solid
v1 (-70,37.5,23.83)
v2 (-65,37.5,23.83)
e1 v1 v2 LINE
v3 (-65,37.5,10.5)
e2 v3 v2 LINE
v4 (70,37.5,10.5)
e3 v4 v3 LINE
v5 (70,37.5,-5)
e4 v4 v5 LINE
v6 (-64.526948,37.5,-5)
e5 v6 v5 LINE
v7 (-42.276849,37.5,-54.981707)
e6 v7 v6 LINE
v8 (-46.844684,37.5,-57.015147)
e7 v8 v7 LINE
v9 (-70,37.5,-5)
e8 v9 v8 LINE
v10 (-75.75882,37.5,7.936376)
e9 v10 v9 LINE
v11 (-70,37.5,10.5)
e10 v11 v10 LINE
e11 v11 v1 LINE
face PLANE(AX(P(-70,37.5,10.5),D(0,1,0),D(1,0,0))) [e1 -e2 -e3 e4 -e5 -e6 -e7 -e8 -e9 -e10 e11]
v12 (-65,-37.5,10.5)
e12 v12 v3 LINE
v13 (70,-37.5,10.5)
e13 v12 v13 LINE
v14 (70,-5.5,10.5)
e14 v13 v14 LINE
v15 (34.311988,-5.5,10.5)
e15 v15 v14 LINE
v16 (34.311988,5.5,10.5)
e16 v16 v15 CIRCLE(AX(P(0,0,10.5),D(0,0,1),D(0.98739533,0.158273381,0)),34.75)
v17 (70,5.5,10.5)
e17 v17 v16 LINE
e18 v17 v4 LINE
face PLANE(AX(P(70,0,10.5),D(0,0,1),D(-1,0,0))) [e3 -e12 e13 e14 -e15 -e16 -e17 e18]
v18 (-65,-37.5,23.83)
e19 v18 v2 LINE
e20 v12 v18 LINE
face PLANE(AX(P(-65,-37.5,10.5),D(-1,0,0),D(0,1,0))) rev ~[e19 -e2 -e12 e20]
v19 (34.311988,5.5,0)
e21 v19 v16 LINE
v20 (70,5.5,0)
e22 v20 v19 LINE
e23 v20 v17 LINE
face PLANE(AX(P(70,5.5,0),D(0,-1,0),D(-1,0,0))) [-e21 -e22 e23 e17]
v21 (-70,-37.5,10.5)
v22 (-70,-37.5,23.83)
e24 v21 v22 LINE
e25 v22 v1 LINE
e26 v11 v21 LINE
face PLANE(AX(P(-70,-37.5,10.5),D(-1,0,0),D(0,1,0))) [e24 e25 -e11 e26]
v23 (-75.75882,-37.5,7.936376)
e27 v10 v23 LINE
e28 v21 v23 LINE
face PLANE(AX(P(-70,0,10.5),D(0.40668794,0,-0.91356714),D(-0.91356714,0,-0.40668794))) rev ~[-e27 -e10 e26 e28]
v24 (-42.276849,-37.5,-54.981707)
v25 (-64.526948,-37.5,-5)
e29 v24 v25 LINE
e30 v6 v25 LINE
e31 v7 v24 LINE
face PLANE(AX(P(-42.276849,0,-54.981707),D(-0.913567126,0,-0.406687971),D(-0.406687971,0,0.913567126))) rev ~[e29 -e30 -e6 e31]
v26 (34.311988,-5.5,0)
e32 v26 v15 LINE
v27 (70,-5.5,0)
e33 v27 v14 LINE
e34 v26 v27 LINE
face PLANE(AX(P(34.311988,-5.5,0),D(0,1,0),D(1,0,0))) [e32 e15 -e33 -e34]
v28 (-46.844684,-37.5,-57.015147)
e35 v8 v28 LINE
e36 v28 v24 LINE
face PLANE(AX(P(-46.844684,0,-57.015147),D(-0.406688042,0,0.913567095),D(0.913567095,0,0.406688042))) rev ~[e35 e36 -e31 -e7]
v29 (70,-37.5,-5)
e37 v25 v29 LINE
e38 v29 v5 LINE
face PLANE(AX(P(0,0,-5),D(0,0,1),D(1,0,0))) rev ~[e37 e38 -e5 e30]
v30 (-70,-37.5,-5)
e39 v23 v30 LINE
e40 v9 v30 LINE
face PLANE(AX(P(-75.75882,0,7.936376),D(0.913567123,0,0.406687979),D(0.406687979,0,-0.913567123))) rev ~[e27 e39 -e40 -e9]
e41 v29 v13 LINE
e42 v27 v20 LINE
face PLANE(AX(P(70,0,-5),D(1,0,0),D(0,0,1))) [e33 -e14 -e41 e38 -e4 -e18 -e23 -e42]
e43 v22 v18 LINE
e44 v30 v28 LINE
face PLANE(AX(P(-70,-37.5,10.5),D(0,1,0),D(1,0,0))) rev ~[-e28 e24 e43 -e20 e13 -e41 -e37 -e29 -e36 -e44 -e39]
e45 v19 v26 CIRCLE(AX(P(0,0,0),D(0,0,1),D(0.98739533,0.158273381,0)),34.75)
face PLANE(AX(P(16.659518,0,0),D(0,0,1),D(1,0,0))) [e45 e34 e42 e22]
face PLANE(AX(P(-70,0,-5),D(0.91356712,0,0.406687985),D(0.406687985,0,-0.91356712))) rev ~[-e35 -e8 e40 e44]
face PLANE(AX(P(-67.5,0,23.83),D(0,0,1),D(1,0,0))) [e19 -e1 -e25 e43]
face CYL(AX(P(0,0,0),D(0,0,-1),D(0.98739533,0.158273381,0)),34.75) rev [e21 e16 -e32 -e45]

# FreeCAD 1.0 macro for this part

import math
import FreeCAD as App
import Part
import Sketcher
from FreeCAD import Vector
Q = App.Units.Quantity


def add_polygon(sketch, points):
    """Adds a closed chain of lines whose ends are joined by coincident constraints."""
    first, n = sketch.GeometryCount, len(points)
    for a, b in zip(points, points[1:] + points[:1]):
        sketch.addGeometry(Part.LineSegment(App.Vector(*a, 0), App.Vector(*b, 0)), False)
    for i in range(n):
        sketch.addConstraint(Sketcher.Constraint("Coincident", first + i, 2, first + (i + 1) % n, 1))

doc = App.newDocument("Part")
body = doc.addObject("PartDesign::Body", "Body")

# Sketch on XY plane
sketch1 = doc.addObject("Sketcher::SketchObject", "Sketch")
body.addObject(sketch1)
sketch1.AttachmentSupport = (doc.XY_Plane, [""])
sketch1.MapMode = "FlatFace"
sketch1.addGeometry(Part.LineSegment(Vector(-70, -38, 0), Vector(70, -38, 0)), False)
sketch1.addGeometry(Part.LineSegment(Vector(70, -38, 0), Vector(70, -6, 0)), False)
sketch1.addGeometry(Part.LineSegment(Vector(70, -6, 0), Vector(34, -6, 0)), False)
sketch1.addGeometry(Part.ArcOfCircle(Part.Circle(Vector(0, 0, 0), Vector(0, 0, 1), 35), math.radians(9), math.radians(351)), False)
sketch1.addGeometry(Part.LineSegment(Vector(34, 6, 0), Vector(70, 6, 0)), False)
sketch1.addGeometry(Part.LineSegment(Vector(70, 6, 0), Vector(70, 38, 0)), False)
sketch1.addGeometry(Part.LineSegment(Vector(70, 38, 0), Vector(-70, 38, 0)), False)
sketch1.addGeometry(Part.LineSegment(Vector(-70, 38, 0), Vector(-70, -38, 0)), False)
sketch1.addConstraint(Sketcher.Constraint("Coincident", 0, 2, 1, 1))
sketch1.addConstraint(Sketcher.Constraint("Coincident", 1, 2, 2, 1))
sketch1.addConstraint(Sketcher.Constraint("Coincident", 2, 2, 3, 2))
sketch1.addConstraint(Sketcher.Constraint("Coincident", 3, 1, 4, 1))
sketch1.addConstraint(Sketcher.Constraint("Coincident", 4, 2, 5, 1))
sketch1.addConstraint(Sketcher.Constraint("Coincident", 5, 2, 6, 1))
sketch1.addConstraint(Sketcher.Constraint("Coincident", 6, 2, 7, 1))
sketch1.addConstraint(Sketcher.Constraint("Coincident", 7, 2, 0, 1))
sketch1.addConstraint(Sketcher.Constraint("Horizontal", 0))
sketch1.addConstraint(Sketcher.Constraint("Vertical", 1))
sketch1.addConstraint(Sketcher.Constraint("Horizontal", 2))
sketch1.addConstraint(Sketcher.Constraint("Horizontal", 4))
sketch1.addConstraint(Sketcher.Constraint("Vertical", 5))
sketch1.addConstraint(Sketcher.Constraint("Horizontal", 6))
sketch1.addConstraint(Sketcher.Constraint("Vertical", 7))
sketch1.addConstraint(Sketcher.Constraint("Coincident", 3, 3, -1, 1))
sketch1.addConstraint(Sketcher.Constraint("Symmetric", 0, 2, 6, 2, -1, 1))
sketch1.addConstraint(Sketcher.Constraint("Symmetric", 1, 2, 4, 2, -1))
sketch1.addConstraint(Sketcher.Constraint("DistanceX", 0, 1, 0, 2, Q("140 mm")))
sketch1.addConstraint(Sketcher.Constraint("DistanceY", 1, 1, 1, 2, Q("32 mm")))
sketch1.addConstraint(Sketcher.Constraint("DistanceY", 7, 2, 7, 1, Q("75 mm")))
sketch1.addConstraint(Sketcher.Constraint("Radius", 3, Q("34.75 mm")))
pad1 = doc.addObject("PartDesign::Pad", "Pad")
body.addObject(pad1)
pad1.Profile = sketch1
pad1.Length = 10.5

# Sketch on XY plane
sketch2 = doc.addObject("Sketcher::SketchObject", "Sketch001")
body.addObject(sketch2)
sketch2.AttachmentSupport = (doc.XY_Plane, [""])
sketch2.MapMode = "FlatFace"
add_polygon(sketch2, [(-70, 38), (-70, -38), (70, -38), (70, 38)])  # lines 0-3
sketch2.addConstraint(Sketcher.Constraint("Vertical", 0))
sketch2.addConstraint(Sketcher.Constraint("Horizontal", 1))
sketch2.addConstraint(Sketcher.Constraint("Vertical", 2))
sketch2.addConstraint(Sketcher.Constraint("Horizontal", 3))
sketch2.addConstraint(Sketcher.Constraint("Symmetric", 0, 2, 2, 2, -1, 1))
sketch2.addConstraint(Sketcher.Constraint("DistanceX", 1, 1, 1, 2, Q("140 mm")))
sketch2.addConstraint(Sketcher.Constraint("DistanceY", 0, 2, 0, 1, Q("75 mm")))
pad2 = doc.addObject("PartDesign::Pad", "Pad001")
body.addObject(pad2)
pad2.Profile = sketch2
pad2.Length = 5
pad2.Reversed = True

# Sketch on XZ plane
sketch3 = doc.addObject("Sketcher::SketchObject", "Sketch002")
body.addObject(sketch3)
sketch3.AttachmentSupport = (doc.XZ_Plane, [""])
sketch3.MapMode = "FlatFace"
add_polygon(sketch3, [(70, 10.5), (-70, 10.5), (-75.75882, 7.936376), (-70, -5), (-65.432164, -2.96656), (-64.526948, -5), (70, -5)])  # lines 0-6
add_polygon(sketch3, [(-64.526948, -5), (-70, -5), (-46.844684, -57.015147), (-42.276849, -54.981707)])  # lines 7-10
sketch3.addConstraint(Sketcher.Constraint("Horizontal", 0))
sketch3.addConstraint(Sketcher.Constraint("Horizontal", 5))
sketch3.addConstraint(Sketcher.Constraint("Vertical", 6))
sketch3.addConstraint(Sketcher.Constraint("Horizontal", 7))
sketch3.addConstraint(Sketcher.Constraint("Coincident", 7, 2, 2, 2))
sketch3.addConstraint(Sketcher.Constraint("Coincident", 10, 2, 4, 2))
sketch3.addConstraint(Sketcher.Constraint("Perpendicular", 1, 2))
sketch3.addConstraint(Sketcher.Constraint("Perpendicular", 2, 3))
sketch3.addConstraint(Sketcher.Constraint("Perpendicular", 3, 4))
sketch3.addConstraint(Sketcher.Constraint("Parallel", 4, 8))
sketch3.addConstraint(Sketcher.Constraint("Perpendicular", 8, 9))
sketch3.addConstraint(Sketcher.Constraint("Perpendicular", 9, 10))
sketch3.addConstraint(Sketcher.Constraint("Vertical", 0, 2, 2, 2))
sketch3.addConstraint(Sketcher.Constraint("DistanceX", 0, 2, 0, 1, Q("140 mm")))
sketch3.addConstraint(Sketcher.Constraint("Distance", 3, Q("5 mm")))
sketch3.addConstraint(Sketcher.Constraint("DistanceY", 6, 1, 6, 2, Q("15.5 mm")))
sketch3.addConstraint(Sketcher.Constraint("DistanceX", 0, 2, -1, 1, Q("70 mm")))
sketch3.addConstraint(Sketcher.Constraint("DistanceY", 2, 2, -1, 1, Q("5 mm")))
sketch3.addConstraint(Sketcher.Constraint("DistanceX", 5, 1, 5, 2, Q("134.526948 mm")))
sketch3.addConstraint(Sketcher.Constraint("DistanceX", 4, 2, 9, 2, Q("22.250099 mm")))
pad3 = doc.addObject("PartDesign::Pad", "Pad002")
body.addObject(pad3)
pad3.Profile = sketch3
pad3.Type = "TwoLengths"
pad3.Length = 37.5
pad3.Length2 = 37.5

# Sketch on XY plane
sketch4 = doc.addObject("Sketcher::SketchObject", "Sketch003")
body.addObject(sketch4)
sketch4.AttachmentSupport = (doc.XY_Plane, [""])
sketch4.MapMode = "FlatFace"
sketch4.addGeometry(Part.LineSegment(Vector(34, -6, 0), Vector(70, -6, 0)), False)
sketch4.addGeometry(Part.LineSegment(Vector(70, -6, 0), Vector(70, 6, 0)), False)
sketch4.addGeometry(Part.LineSegment(Vector(70, 6, 0), Vector(34, 6, 0)), False)
sketch4.addGeometry(Part.ArcOfCircle(Part.Circle(Vector(0, 0, 0), Vector(0, 0, 1), 35), math.radians(9), math.radians(351)), False)
sketch4.addConstraint(Sketcher.Constraint("Coincident", 0, 2, 1, 1))
sketch4.addConstraint(Sketcher.Constraint("Coincident", 1, 2, 2, 1))
sketch4.addConstraint(Sketcher.Constraint("Coincident", 2, 2, 3, 1))
sketch4.addConstraint(Sketcher.Constraint("Coincident", 3, 2, 0, 1))
sketch4.addConstraint(Sketcher.Constraint("Horizontal", 0))
sketch4.addConstraint(Sketcher.Constraint("Vertical", 1))
sketch4.addConstraint(Sketcher.Constraint("Horizontal", 2))
sketch4.addConstraint(Sketcher.Constraint("Coincident", 3, 3, -1, 1))
sketch4.addConstraint(Sketcher.Constraint("Vertical", 2, 2, 3, 2))
sketch4.addConstraint(Sketcher.Constraint("DistanceY", 1, 1, 1, 2, Q("11 mm")))
sketch4.addConstraint(Sketcher.Constraint("Radius", 3, Q("34.75 mm")))
sketch4.addConstraint(Sketcher.Constraint("DistanceX", -1, 1, 0, 2, Q("70 mm")))
pocket1 = doc.addObject("PartDesign::Pocket", "Pocket")
body.addObject(pocket1)
pocket1.Profile = sketch4
pocket1.Type = "ThroughAll"
pocket1.Reversed = True

# Sketch on XY plane
sketch5 = doc.addObject("Sketcher::SketchObject", "Sketch004")
body.addObject(sketch5)
sketch5.AttachmentSupport = (doc.XY_Plane, [""])
sketch5.MapMode = "FlatFace"
sketch5.AttachmentOffset = App.Placement(Vector(0, 0, 10.5), App.Rotation())
add_polygon(sketch5, [(-70, 38), (-70, -38), (-65, -38), (-65, 38)])  # lines 0-3
sketch5.addConstraint(Sketcher.Constraint("Vertical", 0))
sketch5.addConstraint(Sketcher.Constraint("Horizontal", 1))
sketch5.addConstraint(Sketcher.Constraint("Vertical", 2))
sketch5.addConstraint(Sketcher.Constraint("Horizontal", 3))
sketch5.addConstraint(Sketcher.Constraint("DistanceX", 1, 1, 1, 2, Q("5 mm")))
sketch5.addConstraint(Sketcher.Constraint("DistanceY", 0, 2, 0, 1, Q("75 mm")))
sketch5.addConstraint(Sketcher.Constraint("DistanceX", 0, 2, -1, 1, Q("70 mm")))
sketch5.addConstraint(Sketcher.Constraint("DistanceY", 0, 2, -1, 1, Q("37.5 mm")))
pad4 = doc.addObject("PartDesign::Pad", "Pad003")
body.addObject(pad4)
pad4.Profile = sketch5
pad4.Length = 13.33

doc.recompute()
